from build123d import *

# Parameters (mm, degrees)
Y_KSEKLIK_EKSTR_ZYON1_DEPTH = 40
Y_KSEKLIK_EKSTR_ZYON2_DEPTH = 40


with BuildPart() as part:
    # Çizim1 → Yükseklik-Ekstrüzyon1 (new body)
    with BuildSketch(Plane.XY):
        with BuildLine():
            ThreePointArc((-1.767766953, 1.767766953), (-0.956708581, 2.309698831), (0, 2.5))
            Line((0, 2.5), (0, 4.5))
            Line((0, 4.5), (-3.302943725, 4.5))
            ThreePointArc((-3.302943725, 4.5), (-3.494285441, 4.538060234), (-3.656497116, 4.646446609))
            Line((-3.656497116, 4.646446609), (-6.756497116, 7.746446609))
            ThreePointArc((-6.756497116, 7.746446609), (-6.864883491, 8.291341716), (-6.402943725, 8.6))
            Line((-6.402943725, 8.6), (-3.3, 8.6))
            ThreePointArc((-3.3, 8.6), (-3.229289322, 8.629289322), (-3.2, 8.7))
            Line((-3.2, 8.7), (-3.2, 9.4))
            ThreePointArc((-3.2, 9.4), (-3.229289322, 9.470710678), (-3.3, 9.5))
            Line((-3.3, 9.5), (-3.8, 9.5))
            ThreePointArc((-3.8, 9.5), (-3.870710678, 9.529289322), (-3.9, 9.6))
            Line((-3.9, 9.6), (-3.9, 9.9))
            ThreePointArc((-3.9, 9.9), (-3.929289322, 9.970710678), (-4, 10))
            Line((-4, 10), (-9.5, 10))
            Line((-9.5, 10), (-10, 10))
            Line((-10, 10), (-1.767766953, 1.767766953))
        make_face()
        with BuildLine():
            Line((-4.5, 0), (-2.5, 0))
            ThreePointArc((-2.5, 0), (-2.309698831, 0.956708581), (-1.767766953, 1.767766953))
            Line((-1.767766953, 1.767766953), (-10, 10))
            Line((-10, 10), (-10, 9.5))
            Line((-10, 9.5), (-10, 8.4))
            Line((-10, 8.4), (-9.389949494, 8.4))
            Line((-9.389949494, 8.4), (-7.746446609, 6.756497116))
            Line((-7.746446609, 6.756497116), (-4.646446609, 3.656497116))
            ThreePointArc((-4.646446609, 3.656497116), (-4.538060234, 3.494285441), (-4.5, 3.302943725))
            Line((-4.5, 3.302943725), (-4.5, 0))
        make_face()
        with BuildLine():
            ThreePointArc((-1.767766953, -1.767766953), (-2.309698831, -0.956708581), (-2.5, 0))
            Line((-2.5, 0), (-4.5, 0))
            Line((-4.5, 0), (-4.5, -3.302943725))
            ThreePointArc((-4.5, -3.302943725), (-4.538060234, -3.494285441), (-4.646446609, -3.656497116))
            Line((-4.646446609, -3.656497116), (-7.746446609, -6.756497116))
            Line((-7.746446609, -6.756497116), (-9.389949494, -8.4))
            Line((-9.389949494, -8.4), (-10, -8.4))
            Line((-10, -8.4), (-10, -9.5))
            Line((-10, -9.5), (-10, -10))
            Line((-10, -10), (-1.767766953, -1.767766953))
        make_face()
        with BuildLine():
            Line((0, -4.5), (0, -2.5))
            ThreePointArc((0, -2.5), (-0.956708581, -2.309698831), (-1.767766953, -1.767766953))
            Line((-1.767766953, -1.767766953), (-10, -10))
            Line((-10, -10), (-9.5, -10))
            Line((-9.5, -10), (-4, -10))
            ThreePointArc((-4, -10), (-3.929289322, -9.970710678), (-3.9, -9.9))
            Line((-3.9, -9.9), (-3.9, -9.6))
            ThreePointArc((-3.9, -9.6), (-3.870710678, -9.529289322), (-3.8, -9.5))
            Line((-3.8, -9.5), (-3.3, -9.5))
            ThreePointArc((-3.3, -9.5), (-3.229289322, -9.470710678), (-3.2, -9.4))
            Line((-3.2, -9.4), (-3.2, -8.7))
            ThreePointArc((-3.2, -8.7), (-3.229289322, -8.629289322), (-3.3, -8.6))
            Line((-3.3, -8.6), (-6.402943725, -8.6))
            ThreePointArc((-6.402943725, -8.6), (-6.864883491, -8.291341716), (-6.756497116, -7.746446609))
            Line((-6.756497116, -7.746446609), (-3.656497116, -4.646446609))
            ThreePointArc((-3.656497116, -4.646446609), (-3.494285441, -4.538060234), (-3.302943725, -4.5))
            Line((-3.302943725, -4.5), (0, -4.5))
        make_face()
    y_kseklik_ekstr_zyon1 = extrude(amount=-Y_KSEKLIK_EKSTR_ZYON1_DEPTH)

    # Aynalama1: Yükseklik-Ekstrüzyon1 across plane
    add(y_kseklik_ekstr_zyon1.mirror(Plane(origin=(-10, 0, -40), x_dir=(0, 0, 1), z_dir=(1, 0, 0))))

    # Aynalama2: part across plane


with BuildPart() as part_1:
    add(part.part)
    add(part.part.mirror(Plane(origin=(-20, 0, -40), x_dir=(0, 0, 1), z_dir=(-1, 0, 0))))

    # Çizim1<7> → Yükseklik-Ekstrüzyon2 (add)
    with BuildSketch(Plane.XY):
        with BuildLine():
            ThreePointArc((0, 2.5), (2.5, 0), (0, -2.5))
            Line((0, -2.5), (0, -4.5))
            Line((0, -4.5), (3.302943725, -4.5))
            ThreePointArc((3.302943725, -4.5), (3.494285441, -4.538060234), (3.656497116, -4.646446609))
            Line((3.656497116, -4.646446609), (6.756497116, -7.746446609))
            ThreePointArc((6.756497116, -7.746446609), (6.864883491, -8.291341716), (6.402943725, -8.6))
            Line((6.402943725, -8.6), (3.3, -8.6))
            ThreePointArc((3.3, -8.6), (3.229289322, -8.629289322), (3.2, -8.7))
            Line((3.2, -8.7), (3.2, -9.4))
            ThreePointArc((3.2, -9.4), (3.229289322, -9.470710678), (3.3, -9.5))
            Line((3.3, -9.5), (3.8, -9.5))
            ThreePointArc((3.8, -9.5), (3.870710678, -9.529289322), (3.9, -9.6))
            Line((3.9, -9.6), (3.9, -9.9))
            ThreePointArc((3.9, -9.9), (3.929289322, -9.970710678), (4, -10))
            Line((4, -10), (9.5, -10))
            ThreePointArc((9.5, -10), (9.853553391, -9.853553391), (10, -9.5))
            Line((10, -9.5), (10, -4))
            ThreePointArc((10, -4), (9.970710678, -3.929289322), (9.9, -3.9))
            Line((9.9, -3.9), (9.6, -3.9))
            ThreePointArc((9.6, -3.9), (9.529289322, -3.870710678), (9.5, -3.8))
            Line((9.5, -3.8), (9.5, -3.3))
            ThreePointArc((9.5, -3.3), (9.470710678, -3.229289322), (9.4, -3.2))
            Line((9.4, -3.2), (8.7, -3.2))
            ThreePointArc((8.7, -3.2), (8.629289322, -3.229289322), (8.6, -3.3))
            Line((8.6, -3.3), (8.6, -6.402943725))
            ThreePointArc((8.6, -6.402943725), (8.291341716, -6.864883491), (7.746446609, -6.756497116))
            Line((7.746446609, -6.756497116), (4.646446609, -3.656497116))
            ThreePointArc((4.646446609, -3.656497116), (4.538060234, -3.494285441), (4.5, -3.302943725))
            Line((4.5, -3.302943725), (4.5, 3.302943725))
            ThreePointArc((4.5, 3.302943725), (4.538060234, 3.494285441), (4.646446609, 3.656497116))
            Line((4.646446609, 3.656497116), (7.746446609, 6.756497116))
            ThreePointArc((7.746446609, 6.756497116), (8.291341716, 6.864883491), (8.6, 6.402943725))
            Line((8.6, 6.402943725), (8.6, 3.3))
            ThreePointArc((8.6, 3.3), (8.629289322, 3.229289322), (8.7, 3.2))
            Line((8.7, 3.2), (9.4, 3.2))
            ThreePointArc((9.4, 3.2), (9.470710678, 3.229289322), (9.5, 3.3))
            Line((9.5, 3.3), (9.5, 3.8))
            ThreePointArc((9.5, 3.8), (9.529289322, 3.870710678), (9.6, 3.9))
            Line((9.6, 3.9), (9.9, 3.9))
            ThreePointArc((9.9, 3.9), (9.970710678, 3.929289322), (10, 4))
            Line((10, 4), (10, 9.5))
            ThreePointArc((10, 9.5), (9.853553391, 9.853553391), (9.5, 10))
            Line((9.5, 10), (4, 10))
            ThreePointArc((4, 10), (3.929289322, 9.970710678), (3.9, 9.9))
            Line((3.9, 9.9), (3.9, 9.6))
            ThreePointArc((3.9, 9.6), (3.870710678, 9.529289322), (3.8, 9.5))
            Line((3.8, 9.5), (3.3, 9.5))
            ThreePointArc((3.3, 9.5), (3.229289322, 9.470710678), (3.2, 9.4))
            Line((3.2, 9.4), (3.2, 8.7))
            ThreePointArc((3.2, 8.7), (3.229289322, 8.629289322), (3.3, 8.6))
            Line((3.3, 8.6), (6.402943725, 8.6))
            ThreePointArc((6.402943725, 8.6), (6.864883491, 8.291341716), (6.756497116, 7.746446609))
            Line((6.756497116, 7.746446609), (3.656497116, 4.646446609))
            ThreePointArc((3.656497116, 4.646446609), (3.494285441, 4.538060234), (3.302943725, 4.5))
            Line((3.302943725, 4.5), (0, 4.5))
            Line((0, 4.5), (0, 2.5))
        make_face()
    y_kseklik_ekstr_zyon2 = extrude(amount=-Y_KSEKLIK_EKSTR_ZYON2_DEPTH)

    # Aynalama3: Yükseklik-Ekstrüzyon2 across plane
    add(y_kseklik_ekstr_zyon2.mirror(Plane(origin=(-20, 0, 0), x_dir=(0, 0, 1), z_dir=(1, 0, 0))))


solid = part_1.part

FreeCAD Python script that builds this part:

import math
import FreeCAD as App
import Part
import Sketcher

V = App.Vector
Q = App.Units.Quantity

doc = App.newDocument("Part")
params = doc.addObject("Spreadsheet::Sheet", "Params")
for row, (alias, value) in enumerate([
    ("sketch1_radius", "2.5 mm"),
    ("sketch1_radius2", "0.5 mm"),
    ("sketch1_radius3", "0.1 mm"),
    ("sketch1_width", "6 mm"),
    ("sketch1_height", "2 mm"),
    ("pad1_length", "40 mm"),
    ("sketch2_radius", "2.5 mm"),
    ("sketch2_radius2", "0.5 mm"),
    ("sketch2_radius3", "0.1 mm"),
    ("sketch2_height", "2 mm"),
    ("sketch2_width", "0.5 mm"),
    ("pad2_length", "40 mm"),
], start=1):
    params.set(f"A{row}", alias)
    params.set(f"B{row}", "=" + value)
    params.setAlias(f"B{row}", alias)

body = doc.addObject("PartDesign::Body", "Body")

sketch1 = body.newObject("Sketcher::SketchObject", "Sketch")
sketch1.AttachmentSupport = (doc.getObject("XY_Plane"), [""])
sketch1.MapMode = "FlatFace"
sketch1.addGeometry(Part.ArcOfCircle(Part.Circle(V(0, 0, 0), V(0, 0, 1), 2.5), math.radians(90), math.radians(135)), False)
sketch1.addGeometry(Part.LineSegment(V(0, 2.5, 0), V(0, 4.5, 0)), False)
sketch1.addGeometry(Part.LineSegment(V(0, 4.5, 0), V(-3.3, 4.5, 0)), False)
sketch1.addGeometry(Part.ArcOfCircle(Part.Circle(V(-3.3, 5, 0), V(0, 0, 1), 0.5), math.radians(-135), math.radians(-90)), False)
sketch1.addGeometry(Part.LineSegment(V(-3.66, 4.65, 0), V(-6.76, 7.75, 0)), False)
sketch1.addGeometry(Part.ArcOfCircle(Part.Circle(V(-6.4, 8.1, 0), V(0, 0, 1), 0.5), math.radians(90), math.radians(225)), False)
sketch1.addGeometry(Part.LineSegment(V(-6.4, 8.6, 0), V(-3.3, 8.6, 0)), False)
sketch1.addGeometry(Part.ArcOfCircle(Part.Circle(V(-3.3, 8.7, 0), V(0, 0, 1), 0.1), math.radians(-90), math.radians(0)), False)
sketch1.addGeometry(Part.LineSegment(V(-3.2, 8.7, 0), V(-3.2, 9.4, 0)), False)
sketch1.addGeometry(Part.ArcOfCircle(Part.Circle(V(-3.3, 9.4, 0), V(0, 0, 1), 0.1), math.radians(0), math.radians(90)), False)
sketch1.addGeometry(Part.LineSegment(V(-3.3, 9.5, 0), V(-3.8, 9.5, 0)), False)
sketch1.addGeometry(Part.ArcOfCircle(Part.Circle(V(-3.8, 9.6, 0), V(0, 0, 1), 0.1), math.radians(180), math.radians(270)), False)
sketch1.addGeometry(Part.LineSegment(V(-3.9, 9.6, 0), V(-3.9, 9.9, 0)), False)
sketch1.addGeometry(Part.ArcOfCircle(Part.Circle(V(-4, 9.9, 0), V(0, 0, 1), 0.1), math.radians(0), math.radians(90)), False)
sketch1.addGeometry(Part.LineSegment(V(-4, 10, 0), V(-10, 10, 0)), False)
sketch1.addGeometry(Part.LineSegment(V(-10, 10, 0), V(-10, 8.4, 0)), False)
sketch1.addGeometry(Part.LineSegment(V(-10, 8.4, 0), V(-9.39, 8.4, 0)), False)
sketch1.addGeometry(Part.LineSegment(V(-9.39, 8.4, 0), V(-7.75, 6.76, 0)), False)
sketch1.addGeometry(Part.LineSegment(V(-7.75, 6.76, 0), V(-4.65, 3.66, 0)), False)
sketch1.addGeometry(Part.ArcOfCircle(Part.Circle(V(-5, 3.3, 0), V(0, 0, 1), 0.5), math.radians(0), math.radians(45)), False)
sketch1.addGeometry(Part.LineSegment(V(-4.5, 3.3, 0), V(-4.5, -3.3, 0)), False)
sketch1.addGeometry(Part.ArcOfCircle(Part.Circle(V(-5, -3.3, 0), V(0, 0, 1), 0.5), math.radians(-45), math.radians(0)), False)
sketch1.addGeometry(Part.LineSegment(V(-4.65, -3.66, 0), V(-7.75, -6.76, 0)), False)
sketch1.addGeometry(Part.LineSegment(V(-7.75, -6.76, 0), V(-9.39, -8.4, 0)), False)
sketch1.addGeometry(Part.LineSegment(V(-9.39, -8.4, 0), V(-10, -8.4, 0)), False)
sketch1.addGeometry(Part.LineSegment(V(-10, -8.4, 0), V(-10, -10, 0)), False)
sketch1.addGeometry(Part.LineSegment(V(-10, -10, 0), V(-4, -10, 0)), False)
sketch1.addGeometry(Part.ArcOfCircle(Part.Circle(V(-4, -9.9, 0), V(0, 0, 1), 0.1), math.radians(-90), math.radians(0)), False)
sketch1.addGeometry(Part.LineSegment(V(-3.9, -9.9, 0), V(-3.9, -9.6, 0)), False)
sketch1.addGeometry(Part.ArcOfCircle(Part.Circle(V(-3.8, -9.6, 0), V(0, 0, 1), 0.1), math.radians(90), math.radians(180)), False)
sketch1.addGeometry(Part.LineSegment(V(-3.8, -9.5, 0), V(-3.3, -9.5, 0)), False)
sketch1.addGeometry(Part.ArcOfCircle(Part.Circle(V(-3.3, -9.4, 0), V(0, 0, 1), 0.1), math.radians(-90), math.radians(0)), False)
sketch1.addGeometry(Part.LineSegment(V(-3.2, -9.4, 0), V(-3.2, -8.7, 0)), False)
sketch1.addGeometry(Part.ArcOfCircle(Part.Circle(V(-3.3, -8.7, 0), V(0, 0, 1), 0.1), math.radians(0), math.radians(90)), False)
sketch1.addGeometry(Part.LineSegment(V(-3.3, -8.6, 0), V(-6.4, -8.6, 0)), False)
sketch1.addGeometry(Part.ArcOfCircle(Part.Circle(V(-6.4, -8.1, 0), V(0, 0, 1), 0.5), math.radians(135), math.radians(270)), False)
sketch1.addGeometry(Part.LineSegment(V(-6.76, -7.75, 0), V(-3.66, -4.65, 0)), False)
sketch1.addGeometry(Part.ArcOfCircle(Part.Circle(V(-3.3, -5, 0), V(0, 0, 1), 0.5), math.radians(90), math.radians(135)), False)
sketch1.addGeometry(Part.LineSegment(V(-3.3, -4.5, 0), V(0, -4.5, 0)), False)
sketch1.addGeometry(Part.LineSegment(V(0, -4.5, 0), V(0, -2.5, 0)), False)
sketch1.addGeometry(Part.ArcOfCircle(Part.Circle(V(0, 0, 0), V(0, 0, 1), 2.5), math.radians(-135), math.radians(-90)), False)
sketch1.addGeometry(Part.ArcOfCircle(Part.Circle(V(0, 0, 0), V(0, 0, 1), 2.5), math.radians(-180), math.radians(-135)), False)
sketch1.addGeometry(Part.ArcOfCircle(Part.Circle(V(0, 0, 0), V(0, 0, 1), 2.5), math.radians(135), math.radians(180)), False)
sketch1.addConstraint(Sketcher.Constraint("Coincident", 0, 1, 1, 1))
sketch1.addConstraint(Sketcher.Constraint("Coincident", 1, 2, 2, 1))
sketch1.addConstraint(Sketcher.Constraint("Tangent", 2, 2, 3, 2))
sketch1.addConstraint(Sketcher.Constraint("Tangent", 3, 1, 4, 1))
sketch1.addConstraint(Sketcher.Constraint("Tangent", 4, 2, 5, 2))
sketch1.addConstraint(Sketcher.Constraint("Tangent", 5, 1, 6, 1))
sketch1.addConstraint(Sketcher.Constraint("Tangent", 6, 2, 7, 1))
sketch1.addConstraint(Sketcher.Constraint("Tangent", 7, 2, 8, 1))
sketch1.addConstraint(Sketcher.Constraint("Tangent", 8, 2, 9, 1))
sketch1.addConstraint(Sketcher.Constraint("Tangent", 9, 2, 10, 1))
sketch1.addConstraint(Sketcher.Constraint("Tangent", 10, 2, 11, 2))
sketch1.addConstraint(Sketcher.Constraint("Tangent", 11, 1, 12, 1))
sketch1.addConstraint(Sketcher.Constraint("Tangent", 12, 2, 13, 1))
sketch1.addConstraint(Sketcher.Constraint("Tangent", 13, 2, 14, 1))
sketch1.addConstraint(Sketcher.Constraint("Coincident", 14, 2, 15, 1))
sketch1.addConstraint(Sketcher.Constraint("Coincident", 15, 2, 16, 1))
sketch1.addConstraint(Sketcher.Constraint("Coincident", 16, 2, 17, 1))
sketch1.addConstraint(Sketcher.Constraint("Coincident", 17, 2, 18, 1))
sketch1.addConstraint(Sketcher.Constraint("Tangent", 18, 2, 19, 2))
sketch1.addConstraint(Sketcher.Constraint("Tangent", 19, 1, 20, 1))
sketch1.addConstraint(Sketcher.Constraint("Tangent", 20, 2, 21, 2))
sketch1.addConstraint(Sketcher.Constraint("Tangent", 21, 1, 22, 1))
sketch1.addConstraint(Sketcher.Constraint("Coincident", 22, 2, 23, 1))
sketch1.addConstraint(Sketcher.Constraint("Coincident", 23, 2, 24, 1))
sketch1.addConstraint(Sketcher.Constraint("Coincident", 24, 2, 25, 1))
sketch1.addConstraint(Sketcher.Constraint("Coincident", 25, 2, 26, 1))
sketch1.addConstraint(Sketcher.Constraint("Tangent", 26, 2, 27, 1))
sketch1.addConstraint(Sketcher.Constraint("Tangent", 27, 2, 28, 1))
sketch1.addConstraint(Sketcher.Constraint("Tangent", 28, 2, 29, 2))
sketch1.addConstraint(Sketcher.Constraint("Tangent", 29, 1, 30, 1))
sketch1.addConstraint(Sketcher.Constraint("Tangent", 30, 2, 31, 1))
sketch1.addConstraint(Sketcher.Constraint("Tangent", 31, 2, 32, 1))
sketch1.addConstraint(Sketcher.Constraint("Tangent", 32, 2, 33, 1))
sketch1.addConstraint(Sketcher.Constraint("Tangent", 33, 2, 34, 1))
sketch1.addConstraint(Sketcher.Constraint("Tangent", 34, 2, 35, 2))
sketch1.addConstraint(Sketcher.Constraint("Tangent", 35, 1, 36, 1))
sketch1.addConstraint(Sketcher.Constraint("Tangent", 36, 2, 37, 2))
sketch1.addConstraint(Sketcher.Constraint("Tangent", 37, 1, 38, 1))
sketch1.addConstraint(Sketcher.Constraint("Coincident", 38, 2, 39, 1))
sketch1.addConstraint(Sketcher.Constraint("Coincident", 39, 2, 40, 2))
sketch1.addConstraint(Sketcher.Constraint("Tangent", 40, 1, 41, 2))
sketch1.addConstraint(Sketcher.Constraint("Tangent", 41, 1, 42, 2))
sketch1.addConstraint(Sketcher.Constraint("Tangent", 42, 1, 0, 2))
sketch1.addConstraint(Sketcher.Constraint("Vertical", 1))
sketch1.addConstraint(Sketcher.Constraint("Horizontal", 2))
sketch1.addConstraint(Sketcher.Constraint("Horizontal", 6))
sketch1.addConstraint(Sketcher.Constraint("Vertical", 8))
sketch1.addConstraint(Sketcher.Constraint("Horizontal", 10))
sketch1.addConstraint(Sketcher.Constraint("Vertical", 12))
sketch1.addConstraint(Sketcher.Constraint("Horizontal", 14))
sketch1.addConstraint(Sketcher.Constraint("Vertical", 15))
sketch1.addConstraint(Sketcher.Constraint("Horizontal", 16))
sketch1.addConstraint(Sketcher.Constraint("Vertical", 20))
sketch1.addConstraint(Sketcher.Constraint("Horizontal", 24))
sketch1.addConstraint(Sketcher.Constraint("Vertical", 25))
sketch1.addConstraint(Sketcher.Constraint("Horizontal", 26))
sketch1.addConstraint(Sketcher.Constraint("Vertical", 28))
sketch1.addConstraint(Sketcher.Constraint("Horizontal", 30))
sketch1.addConstraint(Sketcher.Constraint("Vertical", 32))
sketch1.addConstraint(Sketcher.Constraint("Horizontal", 34))
sketch1.addConstraint(Sketcher.Constraint("Horizontal", 38))
sketch1.addConstraint(Sketcher.Constraint("Vertical", 39))
sketch1.addConstraint(Sketcher.Constraint("Coincident", 0, 3, -1, 1))
sketch1.addConstraint(Sketcher.Constraint("Coincident", 40, 3, -1, 1))
sketch1.addConstraint(Sketcher.Constraint("Equal", 3, 5))
sketch1.addConstraint(Sketcher.Constraint("Equal", 7, 9))
sketch1.addConstraint(Sketcher.Constraint("Equal", 9, 11))
sketch1.addConstraint(Sketcher.Constraint("Equal", 11, 13))
sketch1.addConstraint(Sketcher.Constraint("Equal", 5, 19))
sketch1.addConstraint(Sketcher.Constraint("Equal", 19, 21))
sketch1.addConstraint(Sketcher.Constraint("Equal", 13, 27))
sketch1.addConstraint(Sketcher.Constraint("Equal", 27, 29))
sketch1.addConstraint(Sketcher.Constraint("Equal", 29, 31))
sketch1.addConstraint(Sketcher.Constraint("Equal", 31, 33))
sketch1.addConstraint(Sketcher.Constraint("Equal", 21, 35))
sketch1.addConstraint(Sketcher.Constraint("Equal", 35, 37))
sketch1.addConstraint(Sketcher.Constraint("Equal", 0, 40))
sketch1.addConstraint(Sketcher.Constraint("Symmetric", 1, 2, 38, 2, -1, 1))
sketch1.addConstraint(Sketcher.Constraint("Symmetric", 13, 3, 27, 3, -1))
sketch1.addConstraint(Sketcher.Constraint("Symmetric", 9, 3, 31, 3, -1))
sketch1.addConstraint(Sketcher.Constraint("Symmetric", 5, 3, 35, 3, -1))
sketch1.addConstraint(Sketcher.Constraint("Symmetric", 18, 2, 21, 1, -1))
sketch1.addConstraint(Sketcher.Constraint("Symmetric", 16, 2, 23, 2, -1))
sketch1.addConstraint(Sketcher.Constraint("PointOnObject", 0, 1, -2))
sketch1.addConstraint(Sketcher.Constraint("PointOnObject", 41, 1, -1))
sketch1.addConstraint(Sketcher.Constraint("Parallel", 4, 17))
sketch1.addConstraint(Sketcher.Constraint("Parallel", 17, 18))
sketch1.addConstraint(Sketcher.Constraint("Perpendicular", 18, 22))
sketch1.addConstraint(Sketcher.Constraint("Parallel", 23, 36))
sketch1.addConstraint(Sketcher.Constraint("Vertical", 17, 2, 22, 2))
sketch1.addConstraint(Sketcher.Constraint("Vertical", 15, 2, 24, 2))
sketch1.addConstraint(Sketcher.Constraint("Vertical", 40, 1, 42, 1))
sketch1.addConstraint(Sketcher.Constraint("Equal", 4, 18))
sketch1.addConstraint(Sketcher.Constraint("Radius", 0, Q("2.5 mm")))
sketch1.addConstraint(Sketcher.Constraint("Radius", 3, Q("0.5 mm")))
sketch1.addConstraint(Sketcher.Constraint("Radius", 7, Q("0.1 mm")))
sketch1.addConstraint(Sketcher.Constraint("DistanceX", 14, 2, 14, 1, Q("6 mm")))
sketch1.addConstraint(Sketcher.Constraint("DistanceY", 1, 1, 1, 2, Q("2 mm")))
sketch1.addConstraint(Sketcher.Constraint("DistanceX", 10, 2, 10, 1, Q("0.5 mm")))
sketch1.addConstraint(Sketcher.Constraint("DistanceY", 8, 1, 8, 2, Q("0.7 mm")))
sketch1.addConstraint(Sketcher.Constraint("DistanceY", 12, 1, 12, 2, Q("0.3 mm")))
sketch1.addConstraint(Sketcher.Constraint("DistanceY", 15, 2, 15, 1, Q("1.6 mm")))
sketch1.addConstraint(Sketcher.Constraint("DistanceX", 13, 3, -1, 1, Q("4 mm")))
sketch1.addConstraint(Sketcher.Constraint("DistanceX", 19, 3, -1, 1, Q("5 mm")))
sketch1.addConstraint(Sketcher.Constraint("DistanceY", -1, 1, 13, 2, Q("10 mm")))
sketch1.addConstraint(Sketcher.Constraint("DistanceX", 16, 1, 16, 2, Q("0.610051 mm")))
sketch1.addConstraint(Sketcher.Constraint("DistanceX", 2, 2, 2, 1, Q("3.302944 mm")))
sketch1.addConstraint(Sketcher.Constraint("DistanceX", 40, 1, -1, 1, Q("1.767767 mm")))
sketch1.setExpression("Constraints[93]", "Params.sketch1_radius")
sketch1.setExpression("Constraints[94]", "Params.sketch1_radius2")
sketch1.setExpression("Constraints[95]", "Params.sketch1_radius3")
sketch1.setExpression("Constraints[96]", "Params.sketch1_width")
sketch1.setExpression("Constraints[97]", "Params.sketch1_height")
pad1 = body.newObject("PartDesign::Pad", "Pad")
pad1.Profile = sketch1
pad1.setExpression("Length", "Params.pad1_length")
pad1.Reversed = True
doc.recompute()

datumplane = body.newObject("PartDesign::Plane", "DatumPlane")
datumplane.AttachmentSupport = (doc.getObject("YZ_Plane"), [""])
datumplane.MapMode = "FlatFace"
datumplane.AttachmentOffset = App.Placement(V(0, 0, -10), App.Rotation())
mirrored = body.newObject("PartDesign::Mirrored", "Mirrored")
mirrored.Originals = [pad1]
mirrored.MirrorPlane = (datumplane, [""])
body.Tip = mirrored
body2 = doc.addObject("PartDesign::Body", "Body001")
doc.recompute()

body2.BaseFeature = body
doc.recompute()

mirroring = doc.addObject("Part::Mirroring", "Mirroring")
mirroring.Source = body
mirroring.Base = V(-20, 0, -40)
mirroring.Normal = V(-1, 0, 0)
body3 = doc.addObject("PartDesign::Body", "Body002")
body3.BaseFeature = mirroring
boolean = body2.newObject("PartDesign::Boolean", "Boolean")
boolean.Type = "Fuse"
boolean.addObjects([body3])
doc.recompute()

sketch2 = body2.newObject("Sketcher::SketchObject", "Sketch001")
sketch2.AttachmentSupport = (doc.getObject("XY_Plane001"), [""])
sketch2.MapMode = "FlatFace"
sketch2.addGeometry(Part.ArcOfCircle(Part.Circle(V(0, 0, 0), V(0, 0, 1), 2.5), math.radians(-90), math.radians(90)), False)
sketch2.addGeometry(Part.LineSegment(V(0, -2.5, 0), V(0, -4.5, 0)), False)
sketch2.addGeometry(Part.LineSegment(V(0, -4.5, 0), V(3.3, -4.5, 0)), False)
sketch2.addGeometry(Part.ArcOfCircle(Part.Circle(V(3.3, -5, 0), V(0, 0, 1), 0.5), math.radians(45), math.radians(90)), False)
sketch2.addGeometry(Part.LineSegment(V(3.66, -4.65, 0), V(6.76, -7.75, 0)), False)
sketch2.addGeometry(Part.ArcOfCircle(Part.Circle(V(6.4, -8.1, 0), V(0, 0, 1), 0.5), math.radians(-90), math.radians(45)), False)
sketch2.addGeometry(Part.LineSegment(V(6.4, -8.6, 0), V(3.3, -8.6, 0)), False)
sketch2.addGeometry(Part.ArcOfCircle(Part.Circle(V(3.3, -8.7, 0), V(0, 0, 1), 0.1), math.radians(90), math.radians(180)), False)
sketch2.addGeometry(Part.LineSegment(V(3.2, -8.7, 0), V(3.2, -9.4, 0)), False)
sketch2.addGeometry(Part.ArcOfCircle(Part.Circle(V(3.3, -9.4, 0), V(0, 0, 1), 0.1), math.radians(180), math.radians(270)), False)
sketch2.addGeometry(Part.LineSegment(V(3.3, -9.5, 0), V(3.8, -9.5, 0)), False)
sketch2.addGeometry(Part.ArcOfCircle(Part.Circle(V(3.8, -9.6, 0), V(0, 0, 1), 0.1), math.radians(0), math.radians(90)), False)
sketch2.addGeometry(Part.LineSegment(V(3.9, -9.6, 0), V(3.9, -9.9, 0)), False)
sketch2.addGeometry(Part.ArcOfCircle(Part.Circle(V(4, -9.9, 0), V(0, 0, 1), 0.1), math.radians(180), math.radians(270)), False)
sketch2.addGeometry(Part.LineSegment(V(4, -10, 0), V(9.5, -10, 0)), False)
sketch2.addGeometry(Part.ArcOfCircle(Part.Circle(V(9.5, -9.5, 0), V(0, 0, 1), 0.5), math.radians(-90), math.radians(0)), False)
sketch2.addGeometry(Part.LineSegment(V(10, -9.5, 0), V(10, -4, 0)), False)
sketch2.addGeometry(Part.ArcOfCircle(Part.Circle(V(9.9, -4, 0), V(0, 0, 1), 0.1), math.radians(0), math.radians(90)), False)
sketch2.addGeometry(Part.LineSegment(V(9.9, -3.9, 0), V(9.6, -3.9, 0)), False)
sketch2.addGeometry(Part.ArcOfCircle(Part.Circle(V(9.6, -3.8, 0), V(0, 0, 1), 0.1), math.radians(180), math.radians(270)), False)
sketch2.addGeometry(Part.LineSegment(V(9.5, -3.8, 0), V(9.5, -3.3, 0)), False)
sketch2.addGeometry(Part.ArcOfCircle(Part.Circle(V(9.4, -3.3, 0), V(0, 0, 1), 0.1), math.radians(0), math.radians(90)), False)
sketch2.addGeometry(Part.LineSegment(V(9.4, -3.2, 0), V(8.7, -3.2, 0)), False)
sketch2.addGeometry(Part.ArcOfCircle(Part.Circle(V(8.7, -3.3, 0), V(0, 0, 1), 0.1), math.radians(90), math.radians(180)), False)
sketch2.addGeometry(Part.LineSegment(V(8.6, -3.3, 0), V(8.6, -6.4, 0)), False)
sketch2.addGeometry(Part.ArcOfCircle(Part.Circle(V(8.1, -6.4, 0), V(0, 0, 1), 0.5), math.radians(-135), math.radians(0)), False)
sketch2.addGeometry(Part.LineSegment(V(7.75, -6.76, 0), V(4.65, -3.66, 0)), False)
sketch2.addGeometry(Part.ArcOfCircle(Part.Circle(V(5, -3.3, 0), V(0, 0, 1), 0.5), math.radians(-180), math.radians(-135)), False)
sketch2.addGeometry(Part.LineSegment(V(4.5, -3.3, 0), V(4.5, 3.3, 0)), False)
sketch2.addGeometry(Part.ArcOfCircle(Part.Circle(V(5, 3.3, 0), V(0, 0, 1), 0.5), math.radians(135), math.radians(180)), False)
sketch2.addGeometry(Part.LineSegment(V(4.65, 3.66, 0), V(7.75, 6.76, 0)), False)
sketch2.addGeometry(Part.ArcOfCircle(Part.Circle(V(8.1, 6.4, 0), V(0, 0, 1), 0.5), math.radians(0), math.radians(135)), False)
sketch2.addGeometry(Part.LineSegment(V(8.6, 6.4, 0), V(8.6, 3.3, 0)), False)
sketch2.addGeometry(Part.ArcOfCircle(Part.Circle(V(8.7, 3.3, 0), V(0, 0, 1), 0.1), math.radians(180), math.radians(270)), False)
sketch2.addGeometry(Part.LineSegment(V(8.7, 3.2, 0), V(9.4, 3.2, 0)), False)
sketch2.addGeometry(Part.ArcOfCircle(Part.Circle(V(9.4, 3.3, 0), V(0, 0, 1), 0.1), math.radians(-90), math.radians(0)), False)
sketch2.addGeometry(Part.LineSegment(V(9.5, 3.3, 0), V(9.5, 3.8, 0)), False)
sketch2.addGeometry(Part.ArcOfCircle(Part.Circle(V(9.6, 3.8, 0), V(0, 0, 1), 0.1), math.radians(90), math.radians(180)), False)
sketch2.addGeometry(Part.LineSegment(V(9.6, 3.9, 0), V(9.9, 3.9, 0)), False)
sketch2.addGeometry(Part.ArcOfCircle(Part.Circle(V(9.9, 4, 0), V(0, 0, 1), 0.1), math.radians(-90), math.radians(0)), False)
sketch2.addGeometry(Part.LineSegment(V(10, 4, 0), V(10, 9.5, 0)), False)
sketch2.addGeometry(Part.ArcOfCircle(Part.Circle(V(9.5, 9.5, 0), V(0, 0, 1), 0.5), math.radians(0), math.radians(90)), False)
sketch2.addGeometry(Part.LineSegment(V(9.5, 10, 0), V(4, 10, 0)), False)
sketch2.addGeometry(Part.ArcOfCircle(Part.Circle(V(4, 9.9, 0), V(0, 0, 1), 0.1), math.radians(90), math.radians(180)), False)
sketch2.addGeometry(Part.LineSegment(V(3.9, 9.9, 0), V(3.9, 9.6, 0)), False)
sketch2.addGeometry(Part.ArcOfCircle(Part.Circle(V(3.8, 9.6, 0), V(0, 0, 1), 0.1), math.radians(-90), math.radians(0)), False)
sketch2.addGeometry(Part.LineSegment(V(3.8, 9.5, 0), V(3.3, 9.5, 0)), False)
sketch2.addGeometry(Part.ArcOfCircle(Part.Circle(V(3.3, 9.4, 0), V(0, 0, 1), 0.1), math.radians(90), math.radians(180)), False)
sketch2.addGeometry(Part.LineSegment(V(3.2, 9.4, 0), V(3.2, 8.7, 0)), False)
sketch2.addGeometry(Part.ArcOfCircle(Part.Circle(V(3.3, 8.7, 0), V(0, 0, 1), 0.1), math.radians(180), math.radians(270)), False)
sketch2.addGeometry(Part.LineSegment(V(3.3, 8.6, 0), V(6.4, 8.6, 0)), False)
sketch2.addGeometry(Part.ArcOfCircle(Part.Circle(V(6.4, 8.1, 0), V(0, 0, 1), 0.5), math.radians(-45), math.radians(90)), False)
sketch2.addGeometry(Part.LineSegment(V(6.76, 7.75, 0), V(3.66, 4.65, 0)), False)
sketch2.addGeometry(Part.ArcOfCircle(Part.Circle(V(3.3, 5, 0), V(0, 0, 1), 0.5), math.radians(-90), math.radians(-45)), False)
sketch2.addGeometry(Part.LineSegment(V(3.3, 4.5, 0), V(0, 4.5, 0)), False)
sketch2.addGeometry(Part.LineSegment(V(0, 4.5, 0), V(0, 2.5, 0)), False)
sketch2.addConstraint(Sketcher.Constraint("Coincident", 0, 1, 1, 1))
sketch2.addConstraint(Sketcher.Constraint("Coincident", 1, 2, 2, 1))
sketch2.addConstraint(Sketcher.Constraint("Tangent", 2, 2, 3, 2))
sketch2.addConstraint(Sketcher.Constraint("Tangent", 3, 1, 4, 1))
sketch2.addConstraint(Sketcher.Constraint("Tangent", 4, 2, 5, 2))
sketch2.addConstraint(Sketcher.Constraint("Tangent", 5, 1, 6, 1))
sketch2.addConstraint(Sketcher.Constraint("Tangent", 6, 2, 7, 1))
sketch2.addConstraint(Sketcher.Constraint("Tangent", 7, 2, 8, 1))
sketch2.addConstraint(Sketcher.Constraint("Tangent", 8, 2, 9, 1))
sketch2.addConstraint(Sketcher.Constraint("Tangent", 9, 2, 10, 1))
sketch2.addConstraint(Sketcher.Constraint("Tangent", 10, 2, 11, 2))
sketch2.addConstraint(Sketcher.Constraint("Tangent", 11, 1, 12, 1))
sketch2.addConstraint(Sketcher.Constraint("Tangent", 12, 2, 13, 1))
sketch2.addConstraint(Sketcher.Constraint("Tangent", 13, 2, 14, 1))
sketch2.addConstraint(Sketcher.Constraint("Tangent", 14, 2, 15, 1))
sketch2.addConstraint(Sketcher.Constraint("Tangent", 15, 2, 16, 1))
sketch2.addConstraint(Sketcher.Constraint("Tangent", 16, 2, 17, 1))
sketch2.addConstraint(Sketcher.Constraint("Tangent", 17, 2, 18, 1))
sketch2.addConstraint(Sketcher.Constraint("Tangent", 18, 2, 19, 2))
sketch2.addConstraint(Sketcher.Constraint("Tangent", 19, 1, 20, 1))
sketch2.addConstraint(Sketcher.Constraint("Tangent", 20, 2, 21, 1))
sketch2.addConstraint(Sketcher.Constraint("Tangent", 21, 2, 22, 1))
sketch2.addConstraint(Sketcher.Constraint("Tangent", 22, 2, 23, 1))
sketch2.addConstraint(Sketcher.Constraint("Tangent", 23, 2, 24, 1))
sketch2.addConstraint(Sketcher.Constraint("Tangent", 24, 2, 25, 2))
sketch2.addConstraint(Sketcher.Constraint("Tangent", 25, 1, 26, 1))
sketch2.addConstraint(Sketcher.Constraint("Tangent", 26, 2, 27, 2))
sketch2.addConstraint(Sketcher.Constraint("Tangent", 27, 1, 28, 1))
sketch2.addConstraint(Sketcher.Constraint("Tangent", 28, 2, 29, 2))
sketch2.addConstraint(Sketcher.Constraint("Tangent", 29, 1, 30, 1))
sketch2.addConstraint(Sketcher.Constraint("Tangent", 30, 2, 31, 2))
sketch2.addConstraint(Sketcher.Constraint("Tangent", 31, 1, 32, 1))
sketch2.addConstraint(Sketcher.Constraint("Tangent", 32, 2, 33, 1))
sketch2.addConstraint(Sketcher.Constraint("Tangent", 33, 2, 34, 1))
sketch2.addConstraint(Sketcher.Constraint("Tangent", 34, 2, 35, 1))
sketch2.addConstraint(Sketcher.Constraint("Tangent", 35, 2, 36, 1))
sketch2.addConstraint(Sketcher.Constraint("Tangent", 36, 2, 37, 2))
sketch2.addConstraint(Sketcher.Constraint("Tangent", 37, 1, 38, 1))
sketch2.addConstraint(Sketcher.Constraint("Tangent", 38, 2, 39, 1))
sketch2.addConstraint(Sketcher.Constraint("Tangent", 39, 2, 40, 1))
sketch2.addConstraint(Sketcher.Constraint("Tangent", 40, 2, 41, 1))
sketch2.addConstraint(Sketcher.Constraint("Tangent", 41, 2, 42, 1))
sketch2.addConstraint(Sketcher.Constraint("Tangent", 42, 2, 43, 1))
sketch2.addConstraint(Sketcher.Constraint("Tangent", 43, 2, 44, 1))
sketch2.addConstraint(Sketcher.Constraint("Tangent", 44, 2, 45, 2))
sketch2.addConstraint(Sketcher.Constraint("Tangent", 45, 1, 46, 1))
sketch2.addConstraint(Sketcher.Constraint("Tangent", 46, 2, 47, 1))
sketch2.addConstraint(Sketcher.Constraint("Tangent", 47, 2, 48, 1))
sketch2.addConstraint(Sketcher.Constraint("Tangent", 48, 2, 49, 1))
sketch2.addConstraint(Sketcher.Constraint("Tangent", 49, 2, 50, 1))
sketch2.addConstraint(Sketcher.Constraint("Tangent", 50, 2, 51, 2))
sketch2.addConstraint(Sketcher.Constraint("Tangent", 51, 1, 52, 1))
sketch2.addConstraint(Sketcher.Constraint("Tangent", 52, 2, 53, 2))
sketch2.addConstraint(Sketcher.Constraint("Tangent", 53, 1, 54, 1))
sketch2.addConstraint(Sketcher.Constraint("Coincident", 54, 2, 55, 1))
sketch2.addConstraint(Sketcher.Constraint("Coincident", 55, 2, 0, 2))
sketch2.addConstraint(Sketcher.Constraint("Vertical", 1))
sketch2.addConstraint(Sketcher.Constraint("Horizontal", 2))
sketch2.addConstraint(Sketcher.Constraint("Horizontal", 6))
sketch2.addConstraint(Sketcher.Constraint("Vertical", 8))
sketch2.addConstraint(Sketcher.Constraint("Horizontal", 10))
sketch2.addConstraint(Sketcher.Constraint("Vertical", 12))
sketch2.addConstraint(Sketcher.Constraint("Horizontal", 14))
sketch2.addConstraint(Sketcher.Constraint("Vertical", 16))
sketch2.addConstraint(Sketcher.Constraint("Horizontal", 18))
sketch2.addConstraint(Sketcher.Constraint("Vertical", 20))
sketch2.addConstraint(Sketcher.Constraint("Horizontal", 22))
sketch2.addConstraint(Sketcher.Constraint("Vertical", 24))
sketch2.addConstraint(Sketcher.Constraint("Vertical", 28))
sketch2.addConstraint(Sketcher.Constraint("Vertical", 32))
sketch2.addConstraint(Sketcher.Constraint("Horizontal", 34))
sketch2.addConstraint(Sketcher.Constraint("Vertical", 36))
sketch2.addConstraint(Sketcher.Constraint("Horizontal", 38))
sketch2.addConstraint(Sketcher.Constraint("Vertical", 40))
sketch2.addConstraint(Sketcher.Constraint("Horizontal", 42))
sketch2.addConstraint(Sketcher.Constraint("Vertical", 44))
sketch2.addConstraint(Sketcher.Constraint("Horizontal", 46))
sketch2.addConstraint(Sketcher.Constraint("Vertical", 48))
sketch2.addConstraint(Sketcher.Constraint("Horizontal", 50))
sketch2.addConstraint(Sketcher.Constraint("Horizontal", 54))
sketch2.addConstraint(Sketcher.Constraint("Vertical", 55))
sketch2.addConstraint(Sketcher.Constraint("Coincident", 0, 3, -1, 1))
sketch2.addConstraint(Sketcher.Constraint("Equal", 3, 5))
sketch2.addConstraint(Sketcher.Constraint("Equal", 7, 9))
sketch2.addConstraint(Sketcher.Constraint("Equal", 9, 11))
sketch2.addConstraint(Sketcher.Constraint("Equal", 11, 13))
sketch2.addConstraint(Sketcher.Constraint("Equal", 5, 15))
sketch2.addConstraint(Sketcher.Constraint("Equal", 13, 17))
sketch2.addConstraint(Sketcher.Constraint("Equal", 17, 19))
sketch2.addConstraint(Sketcher.Constraint("Equal", 19, 21))
sketch2.addConstraint(Sketcher.Constraint("Equal", 21, 23))
sketch2.addConstraint(Sketcher.Constraint("Equal", 15, 25))
sketch2.addConstraint(Sketcher.Constraint("Equal", 25, 27))
sketch2.addConstraint(Sketcher.Constraint("Equal", 27, 29))
sketch2.addConstraint(Sketcher.Constraint("Equal", 29, 31))
sketch2.addConstraint(Sketcher.Constraint("Equal", 23, 33))
sketch2.addConstraint(Sketcher.Constraint("Equal", 33, 35))
sketch2.addConstraint(Sketcher.Constraint("Equal", 35, 37))
sketch2.addConstraint(Sketcher.Constraint("Equal", 37, 39))
sketch2.addConstraint(Sketcher.Constraint("Equal", 31, 41))
sketch2.addConstraint(Sketcher.Constraint("Equal", 39, 43))
sketch2.addConstraint(Sketcher.Constraint("Equal", 43, 45))
sketch2.addConstraint(Sketcher.Constraint("Equal", 45, 47))
sketch2.addConstraint(Sketcher.Constraint("Equal", 47, 49))
sketch2.addConstraint(Sketcher.Constraint("Equal", 41, 51))
sketch2.addConstraint(Sketcher.Constraint("Equal", 51, 53))
sketch2.addConstraint(Sketcher.Constraint("Symmetric", 1, 2, 54, 2, -1, 1))
sketch2.addConstraint(Sketcher.Constraint("Symmetric", 25, 3, 31, 3, -1))
sketch2.addConstraint(Sketcher.Constraint("Symmetric", 21, 3, 35, 3, -1))
sketch2.addConstraint(Sketcher.Constraint("Symmetric", 17, 3, 39, 3, -1))
sketch2.addConstraint(Sketcher.Constraint("Symmetric", 13, 3, 43, 3, -1))
sketch2.addConstraint(Sketcher.Constraint("Symmetric", 9, 3, 47, 3, -1))
sketch2.addConstraint(Sketcher.Constraint("Symmetric", 5, 3, 51, 3, -1))
sketch2.addConstraint(Sketcher.Constraint("PointOnObject", 0, 1, -2))
sketch2.addConstraint(Sketcher.Constraint("Parallel", 4, 26))
sketch2.addConstraint(Sketcher.Constraint("Perpendicular", 26, 30))
sketch2.addConstraint(Sketcher.Constraint("Parallel", 30, 52))
sketch2.addConstraint(Sketcher.Constraint("Horizontal", 15, 3, 9, 2))
sketch2.addConstraint(Sketcher.Constraint("Vertical", 3, 3, 53, 3))
sketch2.addConstraint(Sketcher.Constraint("Vertical", 14, 2, 19, 1))
sketch2.addConstraint(Sketcher.Constraint("Equal", 34, 8))
sketch2.addConstraint(Sketcher.Constraint("Equal", 42, 16))
sketch2.addConstraint(Sketcher.Constraint("Equal", 46, 20))
sketch2.addConstraint(Sketcher.Constraint("Equal", 50, 24))
sketch2.addConstraint(Sketcher.Constraint("Equal", 4, 26))
sketch2.addConstraint(Sketcher.Constraint("Radius", 0, Q("2.5 mm")))
sketch2.addConstraint(Sketcher.Constraint("Radius", 3, Q("0.5 mm")))
sketch2.addConstraint(Sketcher.Constraint("Radius", 7, Q("0.1 mm")))
sketch2.addConstraint(Sketcher.Constraint("DistanceY", 1, 2, 1, 1, Q("2 mm")))
sketch2.addConstraint(Sketcher.Constraint("DistanceX", 10, 1, 10, 2, Q("0.5 mm")))
sketch2.addConstraint(Sketcher.Constraint("DistanceX", 14, 1, 14, 2, Q("5.5 mm")))
sketch2.addConstraint(Sketcher.Constraint("DistanceX", 22, 2, 22, 1, Q("0.7 mm")))
sketch2.addConstraint(Sketcher.Constraint("DistanceX", -1, 1, 13, 3, Q("4 mm")))
sketch2.addConstraint(Sketcher.Constraint("DistanceY", 17, 3, -1, 1, Q("4 mm")))
sketch2.addConstraint(Sketcher.Constraint("DistanceX", 2, 1, 2, 2, Q("3.302944 mm")))
sketch2.setExpression("Constraints[125]", "Params.sketch2_radius")
sketch2.setExpression("Constraints[126]", "Params.sketch2_radius2")
sketch2.setExpression("Constraints[127]", "Params.sketch2_radius3")
sketch2.setExpression("Constraints[128]", "Params.sketch2_height")
sketch2.setExpression("Constraints[129]", "Params.sketch2_width")
pad2 = body2.newObject("PartDesign::Pad", "Pad001")
pad2.Profile = sketch2
pad2.setExpression("Length", "Params.pad2_length")
pad2.Reversed = True
doc.recompute()

datumplane2 = body2.newObject("PartDesign::Plane", "DatumPlane001")
datumplane2.AttachmentSupport = (doc.getObject("YZ_Plane001"), [""])
datumplane2.MapMode = "FlatFace"
datumplane2.AttachmentOffset = App.Placement(V(0, 0, -20), App.Rotation())
mirrored2 = body2.newObject("PartDesign::Mirrored", "Mirrored001")
mirrored2.Originals = [pad2]
mirrored2.MirrorPlane = (datumplane2, [""])
body2.Tip = mirrored2
mirroring.Visibility = False

doc.recompute()
